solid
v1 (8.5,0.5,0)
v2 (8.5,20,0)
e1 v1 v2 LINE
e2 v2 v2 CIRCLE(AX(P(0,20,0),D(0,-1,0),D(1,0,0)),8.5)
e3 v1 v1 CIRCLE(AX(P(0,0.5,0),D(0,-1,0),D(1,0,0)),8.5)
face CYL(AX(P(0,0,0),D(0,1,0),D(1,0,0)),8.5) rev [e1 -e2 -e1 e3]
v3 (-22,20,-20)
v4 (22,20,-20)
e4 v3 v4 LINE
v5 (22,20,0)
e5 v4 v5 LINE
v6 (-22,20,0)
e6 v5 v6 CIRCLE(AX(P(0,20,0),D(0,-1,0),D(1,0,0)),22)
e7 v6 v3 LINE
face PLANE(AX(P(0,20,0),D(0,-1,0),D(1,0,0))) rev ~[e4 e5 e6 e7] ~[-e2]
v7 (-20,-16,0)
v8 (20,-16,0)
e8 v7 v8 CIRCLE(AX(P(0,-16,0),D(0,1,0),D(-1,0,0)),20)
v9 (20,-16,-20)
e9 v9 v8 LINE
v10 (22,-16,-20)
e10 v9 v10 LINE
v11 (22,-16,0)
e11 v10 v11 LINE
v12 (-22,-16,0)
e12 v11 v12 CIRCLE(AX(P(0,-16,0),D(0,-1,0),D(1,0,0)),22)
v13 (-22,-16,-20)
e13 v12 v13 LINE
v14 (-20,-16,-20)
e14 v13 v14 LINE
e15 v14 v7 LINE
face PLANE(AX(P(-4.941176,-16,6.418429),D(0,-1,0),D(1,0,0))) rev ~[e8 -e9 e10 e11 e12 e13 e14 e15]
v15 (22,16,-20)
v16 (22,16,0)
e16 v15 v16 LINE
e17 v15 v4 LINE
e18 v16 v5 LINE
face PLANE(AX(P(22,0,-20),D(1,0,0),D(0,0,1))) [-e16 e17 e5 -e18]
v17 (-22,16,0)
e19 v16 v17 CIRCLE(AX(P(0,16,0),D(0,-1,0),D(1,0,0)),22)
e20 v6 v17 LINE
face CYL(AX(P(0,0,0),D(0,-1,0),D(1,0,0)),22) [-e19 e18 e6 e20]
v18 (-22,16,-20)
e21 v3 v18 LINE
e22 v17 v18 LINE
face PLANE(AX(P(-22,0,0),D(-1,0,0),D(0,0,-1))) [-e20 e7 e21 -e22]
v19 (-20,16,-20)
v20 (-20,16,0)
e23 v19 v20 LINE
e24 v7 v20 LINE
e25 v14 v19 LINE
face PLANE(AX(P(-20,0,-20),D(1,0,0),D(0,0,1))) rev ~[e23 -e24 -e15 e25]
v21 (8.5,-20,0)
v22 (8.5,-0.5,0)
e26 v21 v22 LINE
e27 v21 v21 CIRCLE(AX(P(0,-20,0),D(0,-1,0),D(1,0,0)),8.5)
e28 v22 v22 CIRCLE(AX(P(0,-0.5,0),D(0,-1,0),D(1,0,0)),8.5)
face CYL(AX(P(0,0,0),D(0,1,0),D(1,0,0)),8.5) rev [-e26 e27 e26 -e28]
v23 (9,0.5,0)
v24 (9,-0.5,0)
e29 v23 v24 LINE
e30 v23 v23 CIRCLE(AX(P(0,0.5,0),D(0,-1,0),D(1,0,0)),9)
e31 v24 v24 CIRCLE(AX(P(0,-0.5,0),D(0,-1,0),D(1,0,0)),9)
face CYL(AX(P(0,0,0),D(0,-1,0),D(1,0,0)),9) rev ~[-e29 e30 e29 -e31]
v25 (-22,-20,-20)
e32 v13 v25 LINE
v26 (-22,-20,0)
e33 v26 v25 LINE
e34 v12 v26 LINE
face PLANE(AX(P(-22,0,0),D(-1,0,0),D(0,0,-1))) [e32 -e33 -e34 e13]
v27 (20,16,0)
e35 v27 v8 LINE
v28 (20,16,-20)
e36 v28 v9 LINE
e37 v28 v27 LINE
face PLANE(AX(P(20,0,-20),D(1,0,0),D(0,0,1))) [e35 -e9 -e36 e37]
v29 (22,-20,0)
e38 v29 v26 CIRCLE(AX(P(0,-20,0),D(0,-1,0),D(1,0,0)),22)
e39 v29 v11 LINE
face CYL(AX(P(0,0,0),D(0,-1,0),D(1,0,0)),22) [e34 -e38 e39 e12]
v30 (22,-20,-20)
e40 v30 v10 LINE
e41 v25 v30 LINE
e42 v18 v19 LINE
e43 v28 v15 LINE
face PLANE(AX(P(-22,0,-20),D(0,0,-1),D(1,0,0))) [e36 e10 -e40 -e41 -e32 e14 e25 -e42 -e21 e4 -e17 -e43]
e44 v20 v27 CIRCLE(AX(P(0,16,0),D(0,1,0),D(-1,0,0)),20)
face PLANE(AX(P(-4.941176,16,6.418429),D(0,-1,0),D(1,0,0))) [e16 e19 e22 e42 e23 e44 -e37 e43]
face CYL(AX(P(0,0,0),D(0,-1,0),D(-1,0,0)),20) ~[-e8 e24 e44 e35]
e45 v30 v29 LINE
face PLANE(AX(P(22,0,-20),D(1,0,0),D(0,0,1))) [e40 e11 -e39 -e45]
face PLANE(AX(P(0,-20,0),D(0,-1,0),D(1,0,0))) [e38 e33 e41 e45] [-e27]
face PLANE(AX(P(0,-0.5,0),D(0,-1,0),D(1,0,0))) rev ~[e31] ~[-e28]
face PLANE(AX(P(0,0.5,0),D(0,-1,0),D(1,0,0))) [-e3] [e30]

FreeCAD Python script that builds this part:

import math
import FreeCAD as App
import Part
import Sketcher
from FreeCAD import Vector
Q = App.Units.Quantity

doc = App.newDocument("Part")
body = doc.addObject("PartDesign::Body", "Body")

sketch1 = body.newObject("Sketcher::SketchObject", "Sketch")
sketch1.AttachmentSupport = (doc.getObject("XZ_Plane"), [""])
sketch1.MapMode = "FlatFace"
sketch1.addGeometry([
    Part.ArcOfCircle(Part.Circle(Vector(0, 0, 0), Vector(0, 0, 1), 22), math.radians(0), math.radians(180)),
    Part.LineSegment(Vector(-22, 0, 0), Vector(-22, -20, 0)),
    Part.LineSegment(Vector(-22, -20, 0), Vector(22, -20, 0)),
    Part.LineSegment(Vector(22, -20, 0), Vector(22, 0, 0)),
    Part.Circle(Vector(0, 0, 0), Vector(0, 0, 1), 8),
], False)
sketch1.addConstraint([
    Sketcher.Constraint("Tangent", 0, 2, 1, 1),
    Sketcher.Constraint("Coincident", 1, 2, 2, 1),
    Sketcher.Constraint("Coincident", 2, 2, 3, 1),
    Sketcher.Constraint("Tangent", 3, 2, 0, 1),
    Sketcher.Constraint("Vertical", 1),
    Sketcher.Constraint("Horizontal", 2),
    Sketcher.Constraint("Vertical", 3),
    Sketcher.Constraint("Coincident", 0, 3, -1, 1),
    Sketcher.Constraint("Coincident", 4, 3, -1, 1),
    Sketcher.Constraint("Diameter", 4, Q("17 mm")),
    Sketcher.Constraint("Radius", 0, Q("22 mm")),
    Sketcher.Constraint("DistanceY", 1, 2, 1, 1, Q("20 mm")),
])
pad1 = body.newObject("PartDesign::Pad", "Pad")
pad1.Profile = sketch1
pad1.Length = 40
pad1.Midplane = True

sketch2 = body.newObject("Sketcher::SketchObject", "Sketch001")
sketch2.AttachmentSupport = (doc.getObject("XZ_Plane"), [""])
sketch2.MapMode = "FlatFace"
sketch2.addGeometry([
    Part.Circle(Vector(0, 0, 0), Vector(0, 0, 1), 9),
    Part.Circle(Vector(0, 0, 0), Vector(0, 0, 1), 8),
], False)
sketch2.addConstraint([
    Sketcher.Constraint("Coincident", 0, 3, -1, 1),
    Sketcher.Constraint("Coincident", 1, 3, -1, 1),
    Sketcher.Constraint("Diameter", 0, Q("18 mm")),
    Sketcher.Constraint("Diameter", 1, Q("17 mm")),
])
pocket1 = body.newObject("PartDesign::Pocket", "Pocket")
pocket1.Profile = sketch2
pocket1.Length = 1
pocket1.Midplane = True

sketch3 = body.newObject("Sketcher::SketchObject", "Sketch002")
sketch3.AttachmentSupport = (doc.getObject("XZ_Plane"), [""])
sketch3.MapMode = "FlatFace"
sketch3.addGeometry([
    Part.ArcOfCircle(Part.Circle(Vector(0, 0, 0), Vector(0, 0, 1), 20), math.radians(0), math.radians(180)),
    Part.LineSegment(Vector(20, 0, 0), Vector(20, -20, 0)),
    Part.LineSegment(Vector(20, -20, 0), Vector(22, -20, 0)),
    Part.LineSegment(Vector(22, -20, 0), Vector(22, 0, 0)),
    Part.ArcOfCircle(Part.Circle(Vector(0, 0, 0), Vector(0, 0, 1), 22), math.radians(0), math.radians(180)),
    Part.LineSegment(Vector(-22, 0, 0), Vector(-22, -20, 0)),
    Part.LineSegment(Vector(-22, -20, 0), Vector(-20, -20, 0)),
    Part.LineSegment(Vector(-20, -20, 0), Vector(-20, 0, 0)),
], False)
sketch3.addConstraint([
    Sketcher.Constraint("Tangent", 0, 1, 1, 1),
    Sketcher.Constraint("Coincident", 1, 2, 2, 1),
    Sketcher.Constraint("Coincident", 2, 2, 3, 1),
    Sketcher.Constraint("Tangent", 3, 2, 4, 1),
    Sketcher.Constraint("Tangent", 4, 2, 5, 1),
    Sketcher.Constraint("Coincident", 5, 2, 6, 1),
    Sketcher.Constraint("Coincident", 6, 2, 7, 1),
    Sketcher.Constraint("Tangent", 7, 2, 0, 2),
    Sketcher.Constraint("Vertical", 1),
    Sketcher.Constraint("Horizontal", 2),
    Sketcher.Constraint("Vertical", 3),
    Sketcher.Constraint("Vertical", 5),
    Sketcher.Constraint("Horizontal", 6),
    Sketcher.Constraint("Vertical", 7),
    Sketcher.Constraint("Coincident", 0, 3, -1, 1),
    Sketcher.Constraint("Coincident", 4, 3, -1, 1),
    Sketcher.Constraint("Horizontal", 2, 2, 5, 2),
    Sketcher.Constraint("Radius", 0, Q("20 mm")),
    Sketcher.Constraint("Radius", 4, Q("22 mm")),
    Sketcher.Constraint("DistanceY", 1, 2, 1, 1, Q("20 mm")),
])
pocket2 = body.newObject("PartDesign::Pocket", "Pocket001")
pocket2.Profile = sketch3
pocket2.Length = 32
pocket2.Midplane = True

doc.recompute()
